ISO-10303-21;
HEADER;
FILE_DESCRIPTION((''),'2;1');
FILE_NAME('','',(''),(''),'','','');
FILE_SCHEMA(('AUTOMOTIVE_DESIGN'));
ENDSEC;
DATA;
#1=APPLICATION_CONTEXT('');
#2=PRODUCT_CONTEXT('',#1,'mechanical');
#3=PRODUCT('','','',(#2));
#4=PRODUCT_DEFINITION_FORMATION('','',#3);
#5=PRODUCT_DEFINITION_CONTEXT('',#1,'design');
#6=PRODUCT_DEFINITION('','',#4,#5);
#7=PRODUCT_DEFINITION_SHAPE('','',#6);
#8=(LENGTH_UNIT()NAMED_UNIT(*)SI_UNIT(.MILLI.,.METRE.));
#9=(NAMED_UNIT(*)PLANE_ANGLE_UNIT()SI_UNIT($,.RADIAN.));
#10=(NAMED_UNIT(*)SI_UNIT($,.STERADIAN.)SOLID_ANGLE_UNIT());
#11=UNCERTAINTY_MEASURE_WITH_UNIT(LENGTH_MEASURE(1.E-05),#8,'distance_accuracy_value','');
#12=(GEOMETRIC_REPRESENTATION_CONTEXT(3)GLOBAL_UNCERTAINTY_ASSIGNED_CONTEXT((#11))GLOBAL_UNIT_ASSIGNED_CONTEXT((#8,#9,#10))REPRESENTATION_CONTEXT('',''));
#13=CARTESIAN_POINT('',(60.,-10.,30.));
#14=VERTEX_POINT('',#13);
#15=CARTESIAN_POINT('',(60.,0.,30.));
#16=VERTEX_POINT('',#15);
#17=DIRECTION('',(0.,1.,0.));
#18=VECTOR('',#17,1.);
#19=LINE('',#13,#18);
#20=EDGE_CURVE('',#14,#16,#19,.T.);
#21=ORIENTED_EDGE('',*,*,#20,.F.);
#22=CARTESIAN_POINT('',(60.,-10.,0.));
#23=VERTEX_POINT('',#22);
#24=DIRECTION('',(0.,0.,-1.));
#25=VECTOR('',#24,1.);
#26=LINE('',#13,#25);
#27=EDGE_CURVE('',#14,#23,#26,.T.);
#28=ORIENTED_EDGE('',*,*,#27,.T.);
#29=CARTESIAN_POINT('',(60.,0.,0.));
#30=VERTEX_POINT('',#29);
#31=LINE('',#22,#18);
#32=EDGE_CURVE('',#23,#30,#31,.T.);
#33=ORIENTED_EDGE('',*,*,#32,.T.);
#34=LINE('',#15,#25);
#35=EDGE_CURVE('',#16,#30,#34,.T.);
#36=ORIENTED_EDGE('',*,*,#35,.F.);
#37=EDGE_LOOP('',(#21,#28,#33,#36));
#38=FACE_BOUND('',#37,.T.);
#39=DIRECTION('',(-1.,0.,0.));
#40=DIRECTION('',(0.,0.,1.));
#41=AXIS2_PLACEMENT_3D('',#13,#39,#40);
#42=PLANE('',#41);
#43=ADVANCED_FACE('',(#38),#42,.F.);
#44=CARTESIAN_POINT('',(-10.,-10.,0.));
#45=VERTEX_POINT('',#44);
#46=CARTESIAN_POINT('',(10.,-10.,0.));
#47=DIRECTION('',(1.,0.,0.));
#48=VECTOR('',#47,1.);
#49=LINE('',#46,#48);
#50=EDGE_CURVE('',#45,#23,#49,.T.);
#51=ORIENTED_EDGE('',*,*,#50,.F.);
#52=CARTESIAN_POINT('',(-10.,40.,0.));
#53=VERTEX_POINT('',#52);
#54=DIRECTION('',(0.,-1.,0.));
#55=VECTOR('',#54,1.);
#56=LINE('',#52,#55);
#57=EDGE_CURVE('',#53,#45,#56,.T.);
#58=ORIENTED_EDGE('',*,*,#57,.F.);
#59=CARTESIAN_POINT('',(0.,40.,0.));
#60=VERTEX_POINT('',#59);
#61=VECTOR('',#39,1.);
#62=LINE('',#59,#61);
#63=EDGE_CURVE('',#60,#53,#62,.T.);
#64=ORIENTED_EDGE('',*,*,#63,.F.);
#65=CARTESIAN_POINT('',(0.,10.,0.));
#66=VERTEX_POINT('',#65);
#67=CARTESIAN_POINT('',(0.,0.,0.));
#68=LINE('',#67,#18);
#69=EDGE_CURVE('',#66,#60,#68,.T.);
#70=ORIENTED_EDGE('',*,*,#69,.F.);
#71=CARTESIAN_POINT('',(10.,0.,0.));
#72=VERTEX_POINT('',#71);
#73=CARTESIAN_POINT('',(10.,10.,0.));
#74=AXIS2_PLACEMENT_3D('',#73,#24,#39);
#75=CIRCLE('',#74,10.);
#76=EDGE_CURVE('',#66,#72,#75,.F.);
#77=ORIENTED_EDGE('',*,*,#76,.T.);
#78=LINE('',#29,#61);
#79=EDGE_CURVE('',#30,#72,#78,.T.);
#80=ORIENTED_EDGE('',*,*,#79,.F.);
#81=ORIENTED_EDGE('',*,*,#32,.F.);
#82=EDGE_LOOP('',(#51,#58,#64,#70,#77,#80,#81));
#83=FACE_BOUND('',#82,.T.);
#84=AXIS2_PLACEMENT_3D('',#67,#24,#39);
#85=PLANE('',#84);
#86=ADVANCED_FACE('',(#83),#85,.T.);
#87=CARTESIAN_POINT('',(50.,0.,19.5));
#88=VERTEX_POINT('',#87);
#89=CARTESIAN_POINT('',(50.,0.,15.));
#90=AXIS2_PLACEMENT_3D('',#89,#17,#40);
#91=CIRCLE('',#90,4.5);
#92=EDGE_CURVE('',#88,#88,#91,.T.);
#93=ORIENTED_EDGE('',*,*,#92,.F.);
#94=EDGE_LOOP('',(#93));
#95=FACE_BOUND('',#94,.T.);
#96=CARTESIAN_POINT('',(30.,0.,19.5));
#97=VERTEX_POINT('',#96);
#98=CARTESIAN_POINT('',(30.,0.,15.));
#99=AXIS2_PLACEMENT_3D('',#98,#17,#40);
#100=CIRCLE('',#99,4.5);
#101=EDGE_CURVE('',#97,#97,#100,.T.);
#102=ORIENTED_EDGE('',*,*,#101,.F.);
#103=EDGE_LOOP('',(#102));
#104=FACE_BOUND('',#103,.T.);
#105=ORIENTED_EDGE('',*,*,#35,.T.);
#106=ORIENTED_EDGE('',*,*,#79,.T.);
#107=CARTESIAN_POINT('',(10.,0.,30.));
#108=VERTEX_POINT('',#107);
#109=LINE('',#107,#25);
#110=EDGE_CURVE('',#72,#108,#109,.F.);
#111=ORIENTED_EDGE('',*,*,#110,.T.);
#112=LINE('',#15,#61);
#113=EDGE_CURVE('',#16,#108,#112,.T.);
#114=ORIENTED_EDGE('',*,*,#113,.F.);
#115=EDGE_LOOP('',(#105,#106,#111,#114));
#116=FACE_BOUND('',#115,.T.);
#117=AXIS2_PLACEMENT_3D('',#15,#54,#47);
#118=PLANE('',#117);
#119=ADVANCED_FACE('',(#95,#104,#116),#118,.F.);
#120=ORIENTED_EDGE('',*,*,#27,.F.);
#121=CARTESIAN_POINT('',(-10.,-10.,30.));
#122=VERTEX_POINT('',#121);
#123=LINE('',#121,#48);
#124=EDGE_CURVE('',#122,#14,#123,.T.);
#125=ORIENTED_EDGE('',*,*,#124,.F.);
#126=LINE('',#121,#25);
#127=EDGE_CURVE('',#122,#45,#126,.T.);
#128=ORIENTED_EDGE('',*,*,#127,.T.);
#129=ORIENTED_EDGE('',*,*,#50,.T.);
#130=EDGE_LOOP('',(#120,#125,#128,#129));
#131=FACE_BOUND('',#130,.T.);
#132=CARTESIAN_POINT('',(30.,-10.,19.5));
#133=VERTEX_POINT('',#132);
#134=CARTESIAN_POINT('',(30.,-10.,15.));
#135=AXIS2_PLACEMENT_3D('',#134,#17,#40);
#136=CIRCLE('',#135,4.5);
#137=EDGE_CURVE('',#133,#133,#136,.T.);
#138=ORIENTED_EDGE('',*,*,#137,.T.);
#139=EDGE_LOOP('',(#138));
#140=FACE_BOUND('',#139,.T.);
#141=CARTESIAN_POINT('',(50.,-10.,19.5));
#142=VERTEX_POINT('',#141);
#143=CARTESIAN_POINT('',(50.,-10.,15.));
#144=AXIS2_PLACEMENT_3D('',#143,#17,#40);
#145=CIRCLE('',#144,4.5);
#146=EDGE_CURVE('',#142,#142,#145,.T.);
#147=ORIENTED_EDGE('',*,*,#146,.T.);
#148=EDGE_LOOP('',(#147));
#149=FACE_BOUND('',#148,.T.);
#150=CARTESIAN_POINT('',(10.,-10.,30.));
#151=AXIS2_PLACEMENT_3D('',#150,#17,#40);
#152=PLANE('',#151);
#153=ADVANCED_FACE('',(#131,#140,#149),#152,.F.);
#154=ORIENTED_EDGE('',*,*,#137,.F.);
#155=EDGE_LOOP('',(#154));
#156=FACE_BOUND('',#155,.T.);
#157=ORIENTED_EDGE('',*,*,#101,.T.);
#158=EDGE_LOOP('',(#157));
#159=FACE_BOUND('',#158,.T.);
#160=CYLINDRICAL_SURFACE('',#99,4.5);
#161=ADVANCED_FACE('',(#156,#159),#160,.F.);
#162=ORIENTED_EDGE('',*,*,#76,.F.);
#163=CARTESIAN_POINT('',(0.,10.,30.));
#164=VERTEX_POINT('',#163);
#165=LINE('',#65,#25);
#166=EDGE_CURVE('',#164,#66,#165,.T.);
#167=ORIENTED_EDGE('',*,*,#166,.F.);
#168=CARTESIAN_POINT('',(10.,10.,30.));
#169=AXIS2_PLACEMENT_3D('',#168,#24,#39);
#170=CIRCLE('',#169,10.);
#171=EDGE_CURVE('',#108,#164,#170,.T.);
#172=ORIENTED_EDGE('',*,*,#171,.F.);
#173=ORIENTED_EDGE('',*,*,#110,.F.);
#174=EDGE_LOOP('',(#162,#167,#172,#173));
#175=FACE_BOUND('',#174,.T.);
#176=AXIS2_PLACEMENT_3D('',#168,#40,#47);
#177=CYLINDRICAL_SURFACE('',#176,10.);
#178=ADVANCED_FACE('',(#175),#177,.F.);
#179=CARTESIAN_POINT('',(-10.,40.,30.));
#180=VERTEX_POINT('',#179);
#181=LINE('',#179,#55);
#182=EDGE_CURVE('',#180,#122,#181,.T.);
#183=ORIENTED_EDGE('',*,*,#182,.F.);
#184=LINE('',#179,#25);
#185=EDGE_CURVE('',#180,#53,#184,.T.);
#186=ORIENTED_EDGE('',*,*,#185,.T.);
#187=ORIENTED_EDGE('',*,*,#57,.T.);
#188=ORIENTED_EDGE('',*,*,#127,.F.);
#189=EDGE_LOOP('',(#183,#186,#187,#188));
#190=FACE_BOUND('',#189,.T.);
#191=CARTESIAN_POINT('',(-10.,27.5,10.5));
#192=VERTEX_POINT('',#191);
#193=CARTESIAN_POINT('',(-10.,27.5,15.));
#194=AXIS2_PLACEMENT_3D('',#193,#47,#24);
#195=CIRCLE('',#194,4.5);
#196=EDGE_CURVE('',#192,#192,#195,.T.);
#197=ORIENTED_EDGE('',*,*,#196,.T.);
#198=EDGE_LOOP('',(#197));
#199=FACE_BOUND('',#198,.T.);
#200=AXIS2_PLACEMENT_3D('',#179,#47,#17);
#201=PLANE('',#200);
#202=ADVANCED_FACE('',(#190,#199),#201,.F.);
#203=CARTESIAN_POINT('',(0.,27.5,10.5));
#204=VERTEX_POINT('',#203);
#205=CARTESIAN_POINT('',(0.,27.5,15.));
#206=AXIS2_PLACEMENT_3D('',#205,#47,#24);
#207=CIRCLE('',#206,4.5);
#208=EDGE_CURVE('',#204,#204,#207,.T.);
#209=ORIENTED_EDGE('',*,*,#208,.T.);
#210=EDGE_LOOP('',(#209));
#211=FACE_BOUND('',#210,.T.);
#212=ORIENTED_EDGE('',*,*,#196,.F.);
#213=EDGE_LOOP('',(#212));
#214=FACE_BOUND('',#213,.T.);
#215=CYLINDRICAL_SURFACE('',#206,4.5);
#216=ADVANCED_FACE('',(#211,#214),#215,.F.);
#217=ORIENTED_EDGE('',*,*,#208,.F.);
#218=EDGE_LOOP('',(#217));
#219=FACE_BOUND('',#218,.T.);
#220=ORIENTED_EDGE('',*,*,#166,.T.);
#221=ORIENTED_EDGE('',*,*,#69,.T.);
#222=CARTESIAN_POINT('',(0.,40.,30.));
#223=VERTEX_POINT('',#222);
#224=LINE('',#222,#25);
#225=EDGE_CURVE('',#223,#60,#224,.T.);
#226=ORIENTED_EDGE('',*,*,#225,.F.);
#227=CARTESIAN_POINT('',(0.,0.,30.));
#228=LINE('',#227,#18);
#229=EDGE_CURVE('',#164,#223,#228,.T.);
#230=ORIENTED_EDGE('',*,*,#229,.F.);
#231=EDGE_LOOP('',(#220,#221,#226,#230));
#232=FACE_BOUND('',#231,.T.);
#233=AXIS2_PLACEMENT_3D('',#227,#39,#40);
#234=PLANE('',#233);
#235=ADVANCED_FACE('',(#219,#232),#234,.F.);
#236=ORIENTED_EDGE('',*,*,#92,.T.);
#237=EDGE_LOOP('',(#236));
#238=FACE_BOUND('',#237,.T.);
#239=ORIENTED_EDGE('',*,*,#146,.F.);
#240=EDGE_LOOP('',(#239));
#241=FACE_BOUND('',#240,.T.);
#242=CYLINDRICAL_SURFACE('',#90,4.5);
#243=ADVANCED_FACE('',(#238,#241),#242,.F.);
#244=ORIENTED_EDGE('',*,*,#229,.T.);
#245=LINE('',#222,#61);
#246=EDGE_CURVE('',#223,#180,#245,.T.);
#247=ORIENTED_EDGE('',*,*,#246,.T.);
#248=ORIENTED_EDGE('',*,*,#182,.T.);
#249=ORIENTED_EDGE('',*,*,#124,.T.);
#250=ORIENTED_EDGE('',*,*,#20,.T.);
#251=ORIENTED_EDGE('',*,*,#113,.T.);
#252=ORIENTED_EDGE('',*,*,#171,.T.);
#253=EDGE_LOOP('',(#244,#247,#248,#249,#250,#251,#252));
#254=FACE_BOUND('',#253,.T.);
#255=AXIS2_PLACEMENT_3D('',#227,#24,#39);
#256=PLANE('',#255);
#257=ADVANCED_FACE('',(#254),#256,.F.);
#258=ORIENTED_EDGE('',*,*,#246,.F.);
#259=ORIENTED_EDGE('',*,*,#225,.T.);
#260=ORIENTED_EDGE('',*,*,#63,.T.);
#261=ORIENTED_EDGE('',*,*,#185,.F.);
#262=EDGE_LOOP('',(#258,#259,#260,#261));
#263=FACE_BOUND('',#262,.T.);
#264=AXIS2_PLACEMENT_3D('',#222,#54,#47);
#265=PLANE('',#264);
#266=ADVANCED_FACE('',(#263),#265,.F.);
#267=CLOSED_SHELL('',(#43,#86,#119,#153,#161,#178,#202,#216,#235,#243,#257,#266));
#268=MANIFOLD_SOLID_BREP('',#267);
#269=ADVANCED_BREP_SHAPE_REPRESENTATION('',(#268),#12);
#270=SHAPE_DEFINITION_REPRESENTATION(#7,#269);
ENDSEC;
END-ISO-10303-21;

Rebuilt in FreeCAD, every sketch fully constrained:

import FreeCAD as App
import Part
import Sketcher


def edges_at(feature, points):
    """Names of the edges that pass closest to the given points."""
    edges = feature.Shape.Edges
    near = lambda p: min(range(len(edges)), key=lambda i: edges[i].distToShape(Part.Vertex(*p))[0])
    return sorted({f"Edge{near(p) + 1}" for p in points})


def add_polygon(sketch, points):
    """Adds a closed chain of lines whose ends are joined by coincident constraints."""
    first, n = sketch.GeometryCount, len(points)
    for a, b in zip(points, points[1:] + points[:1]):
        sketch.addGeometry(Part.LineSegment(App.Vector(*a, 0), App.Vector(*b, 0)), False)
    for i in range(n):
        sketch.addConstraint(Sketcher.Constraint("Coincident", first + i, 2, first + (i + 1) % n, 1))

doc = App.newDocument("Part")
params = doc.addObject("Spreadsheet::Sheet", "Params")
for row, (alias, value) in enumerate([
    ("sketch1_width", "10 mm"),
    ("sketch1_width2", "70 mm"),
    ("sketch1_height", "40 mm"),
    ("pad1_length", "30 mm"),
    ("sketch2_diameter", "9 mm"),
    ("hole_diameter", "9 mm"),
    ("sketch3_diameter", "9 mm"),
    ("hole2_diameter", "9 mm"),
    ("fillet_radius", "10 mm"),
], start=1):
    params.set(f"A{row}", alias)
    params.set(f"B{row}", "=" + value)
    params.setAlias(f"B{row}", alias)

body = doc.addObject("PartDesign::Body", "Body")

sketch1 = doc.addObject("Sketcher::SketchObject", "Sketch")
body.addObject(sketch1)
sketch1.AttachmentSupport = (doc.XY_Plane, [""])
sketch1.MapMode = "FlatFace"
add_polygon(sketch1, [(0, 0), (0, 40), (-10, 40), (-10, -10), (60, -10), (60, 0)])
sketch1.addConstraint(Sketcher.Constraint("Vertical", 0))
sketch1.addConstraint(Sketcher.Constraint("Horizontal", 1))
sketch1.addConstraint(Sketcher.Constraint("Vertical", 2))
sketch1.addConstraint(Sketcher.Constraint("Horizontal", 3))
sketch1.addConstraint(Sketcher.Constraint("Vertical", 4))
sketch1.addConstraint(Sketcher.Constraint("Horizontal", 5))
sketch1.addConstraint(Sketcher.Constraint("Coincident", 5, 2, -1, 1))
sketch1.addConstraint(Sketcher.Constraint("Equal", 1, 4))
sketch1.addConstraint(Sketcher.Constraint("DistanceX", 1, 2, 1, 1, 10.0))
sketch1.addConstraint(Sketcher.Constraint("DistanceX", 3, 1, 3, 2, 70.0))
sketch1.addConstraint(Sketcher.Constraint("DistanceY", 0, 1, 0, 2, 40.0))
sketch1.setExpression("Constraints[14]", "Params.sketch1_width")
sketch1.setExpression("Constraints[15]", "Params.sketch1_width2")
sketch1.setExpression("Constraints[16]", "Params.sketch1_height")
pad1 = doc.addObject("PartDesign::Pad", "Pad")
body.addObject(pad1)
pad1.Profile = sketch1
pad1.setExpression("Length", "Params.pad1_length")

sketch2 = doc.addObject("Sketcher::SketchObject", "Sketch001")
body.addObject(sketch2)
sketch2.AttachmentSupport = (doc.YZ_Plane, [""])
sketch2.MapMode = "FlatFace"
sketch2.addGeometry(Part.Circle(App.Vector(27.5, 15, 0), App.Vector(0, 0, 1), 4.5), False)
sketch2.addConstraint(Sketcher.Constraint("Diameter", 0, 9.0))
sketch2.addConstraint(Sketcher.Constraint("DistanceY", -1, 1, 0, 3, 15.0))
sketch2.addConstraint(Sketcher.Constraint("DistanceX", -1, 1, 0, 3, 27.5))
sketch2.setExpression("Constraints[0]", "Params.sketch2_diameter")
doc.recompute()
hole = doc.addObject("PartDesign::Hole", "Hole")
body.addObject(hole)
hole.Profile = sketch2
hole.ThreadType = "None"
hole.setExpression("Diameter", "Params.hole_diameter")
hole.DepthType = "ThroughAll"

sketch3 = doc.addObject("Sketcher::SketchObject", "Sketch002")
body.addObject(sketch3)
sketch3.AttachmentSupport = (doc.XZ_Plane, [""])
sketch3.MapMode = "FlatFace"
sketch3.addGeometry(Part.Circle(App.Vector(30, 15, 0), App.Vector(0, 0, 1), 4.5), False)
sketch3.addGeometry(Part.Circle(App.Vector(50, 15, 0), App.Vector(0, 0, 1), 4.5), False)
sketch3.addConstraint(Sketcher.Constraint("Equal", 0, 1))
sketch3.addConstraint(Sketcher.Constraint("Horizontal", 0, 3, 1, 3))
sketch3.addConstraint(Sketcher.Constraint("Diameter", 0, 9.0))
sketch3.addConstraint(Sketcher.Constraint("DistanceX", -1, 1, 0, 3, 30.0))
sketch3.addConstraint(Sketcher.Constraint("DistanceY", -1, 1, 0, 3, 15.0))
sketch3.addConstraint(Sketcher.Constraint("DistanceX", -1, 1, 1, 3, 50.0))
sketch3.setExpression("Constraints[2]", "Params.sketch3_diameter")
doc.recompute()
hole2 = doc.addObject("PartDesign::Hole", "Hole001")
body.addObject(hole2)
hole2.Profile = sketch3
hole2.ThreadType = "None"
hole2.setExpression("Diameter", "Params.hole2_diameter")
hole2.DepthType = "ThroughAll"
hole2.Reversed = True
doc.recompute()

fillet = doc.addObject("PartDesign::Fillet", "Fillet")
body.addObject(fillet)
fillet.Base = (hole2, edges_at(hole2, [(0, 0, 15)]))
fillet.setExpression("Radius", "Params.fillet_radius")

doc.recompute()
